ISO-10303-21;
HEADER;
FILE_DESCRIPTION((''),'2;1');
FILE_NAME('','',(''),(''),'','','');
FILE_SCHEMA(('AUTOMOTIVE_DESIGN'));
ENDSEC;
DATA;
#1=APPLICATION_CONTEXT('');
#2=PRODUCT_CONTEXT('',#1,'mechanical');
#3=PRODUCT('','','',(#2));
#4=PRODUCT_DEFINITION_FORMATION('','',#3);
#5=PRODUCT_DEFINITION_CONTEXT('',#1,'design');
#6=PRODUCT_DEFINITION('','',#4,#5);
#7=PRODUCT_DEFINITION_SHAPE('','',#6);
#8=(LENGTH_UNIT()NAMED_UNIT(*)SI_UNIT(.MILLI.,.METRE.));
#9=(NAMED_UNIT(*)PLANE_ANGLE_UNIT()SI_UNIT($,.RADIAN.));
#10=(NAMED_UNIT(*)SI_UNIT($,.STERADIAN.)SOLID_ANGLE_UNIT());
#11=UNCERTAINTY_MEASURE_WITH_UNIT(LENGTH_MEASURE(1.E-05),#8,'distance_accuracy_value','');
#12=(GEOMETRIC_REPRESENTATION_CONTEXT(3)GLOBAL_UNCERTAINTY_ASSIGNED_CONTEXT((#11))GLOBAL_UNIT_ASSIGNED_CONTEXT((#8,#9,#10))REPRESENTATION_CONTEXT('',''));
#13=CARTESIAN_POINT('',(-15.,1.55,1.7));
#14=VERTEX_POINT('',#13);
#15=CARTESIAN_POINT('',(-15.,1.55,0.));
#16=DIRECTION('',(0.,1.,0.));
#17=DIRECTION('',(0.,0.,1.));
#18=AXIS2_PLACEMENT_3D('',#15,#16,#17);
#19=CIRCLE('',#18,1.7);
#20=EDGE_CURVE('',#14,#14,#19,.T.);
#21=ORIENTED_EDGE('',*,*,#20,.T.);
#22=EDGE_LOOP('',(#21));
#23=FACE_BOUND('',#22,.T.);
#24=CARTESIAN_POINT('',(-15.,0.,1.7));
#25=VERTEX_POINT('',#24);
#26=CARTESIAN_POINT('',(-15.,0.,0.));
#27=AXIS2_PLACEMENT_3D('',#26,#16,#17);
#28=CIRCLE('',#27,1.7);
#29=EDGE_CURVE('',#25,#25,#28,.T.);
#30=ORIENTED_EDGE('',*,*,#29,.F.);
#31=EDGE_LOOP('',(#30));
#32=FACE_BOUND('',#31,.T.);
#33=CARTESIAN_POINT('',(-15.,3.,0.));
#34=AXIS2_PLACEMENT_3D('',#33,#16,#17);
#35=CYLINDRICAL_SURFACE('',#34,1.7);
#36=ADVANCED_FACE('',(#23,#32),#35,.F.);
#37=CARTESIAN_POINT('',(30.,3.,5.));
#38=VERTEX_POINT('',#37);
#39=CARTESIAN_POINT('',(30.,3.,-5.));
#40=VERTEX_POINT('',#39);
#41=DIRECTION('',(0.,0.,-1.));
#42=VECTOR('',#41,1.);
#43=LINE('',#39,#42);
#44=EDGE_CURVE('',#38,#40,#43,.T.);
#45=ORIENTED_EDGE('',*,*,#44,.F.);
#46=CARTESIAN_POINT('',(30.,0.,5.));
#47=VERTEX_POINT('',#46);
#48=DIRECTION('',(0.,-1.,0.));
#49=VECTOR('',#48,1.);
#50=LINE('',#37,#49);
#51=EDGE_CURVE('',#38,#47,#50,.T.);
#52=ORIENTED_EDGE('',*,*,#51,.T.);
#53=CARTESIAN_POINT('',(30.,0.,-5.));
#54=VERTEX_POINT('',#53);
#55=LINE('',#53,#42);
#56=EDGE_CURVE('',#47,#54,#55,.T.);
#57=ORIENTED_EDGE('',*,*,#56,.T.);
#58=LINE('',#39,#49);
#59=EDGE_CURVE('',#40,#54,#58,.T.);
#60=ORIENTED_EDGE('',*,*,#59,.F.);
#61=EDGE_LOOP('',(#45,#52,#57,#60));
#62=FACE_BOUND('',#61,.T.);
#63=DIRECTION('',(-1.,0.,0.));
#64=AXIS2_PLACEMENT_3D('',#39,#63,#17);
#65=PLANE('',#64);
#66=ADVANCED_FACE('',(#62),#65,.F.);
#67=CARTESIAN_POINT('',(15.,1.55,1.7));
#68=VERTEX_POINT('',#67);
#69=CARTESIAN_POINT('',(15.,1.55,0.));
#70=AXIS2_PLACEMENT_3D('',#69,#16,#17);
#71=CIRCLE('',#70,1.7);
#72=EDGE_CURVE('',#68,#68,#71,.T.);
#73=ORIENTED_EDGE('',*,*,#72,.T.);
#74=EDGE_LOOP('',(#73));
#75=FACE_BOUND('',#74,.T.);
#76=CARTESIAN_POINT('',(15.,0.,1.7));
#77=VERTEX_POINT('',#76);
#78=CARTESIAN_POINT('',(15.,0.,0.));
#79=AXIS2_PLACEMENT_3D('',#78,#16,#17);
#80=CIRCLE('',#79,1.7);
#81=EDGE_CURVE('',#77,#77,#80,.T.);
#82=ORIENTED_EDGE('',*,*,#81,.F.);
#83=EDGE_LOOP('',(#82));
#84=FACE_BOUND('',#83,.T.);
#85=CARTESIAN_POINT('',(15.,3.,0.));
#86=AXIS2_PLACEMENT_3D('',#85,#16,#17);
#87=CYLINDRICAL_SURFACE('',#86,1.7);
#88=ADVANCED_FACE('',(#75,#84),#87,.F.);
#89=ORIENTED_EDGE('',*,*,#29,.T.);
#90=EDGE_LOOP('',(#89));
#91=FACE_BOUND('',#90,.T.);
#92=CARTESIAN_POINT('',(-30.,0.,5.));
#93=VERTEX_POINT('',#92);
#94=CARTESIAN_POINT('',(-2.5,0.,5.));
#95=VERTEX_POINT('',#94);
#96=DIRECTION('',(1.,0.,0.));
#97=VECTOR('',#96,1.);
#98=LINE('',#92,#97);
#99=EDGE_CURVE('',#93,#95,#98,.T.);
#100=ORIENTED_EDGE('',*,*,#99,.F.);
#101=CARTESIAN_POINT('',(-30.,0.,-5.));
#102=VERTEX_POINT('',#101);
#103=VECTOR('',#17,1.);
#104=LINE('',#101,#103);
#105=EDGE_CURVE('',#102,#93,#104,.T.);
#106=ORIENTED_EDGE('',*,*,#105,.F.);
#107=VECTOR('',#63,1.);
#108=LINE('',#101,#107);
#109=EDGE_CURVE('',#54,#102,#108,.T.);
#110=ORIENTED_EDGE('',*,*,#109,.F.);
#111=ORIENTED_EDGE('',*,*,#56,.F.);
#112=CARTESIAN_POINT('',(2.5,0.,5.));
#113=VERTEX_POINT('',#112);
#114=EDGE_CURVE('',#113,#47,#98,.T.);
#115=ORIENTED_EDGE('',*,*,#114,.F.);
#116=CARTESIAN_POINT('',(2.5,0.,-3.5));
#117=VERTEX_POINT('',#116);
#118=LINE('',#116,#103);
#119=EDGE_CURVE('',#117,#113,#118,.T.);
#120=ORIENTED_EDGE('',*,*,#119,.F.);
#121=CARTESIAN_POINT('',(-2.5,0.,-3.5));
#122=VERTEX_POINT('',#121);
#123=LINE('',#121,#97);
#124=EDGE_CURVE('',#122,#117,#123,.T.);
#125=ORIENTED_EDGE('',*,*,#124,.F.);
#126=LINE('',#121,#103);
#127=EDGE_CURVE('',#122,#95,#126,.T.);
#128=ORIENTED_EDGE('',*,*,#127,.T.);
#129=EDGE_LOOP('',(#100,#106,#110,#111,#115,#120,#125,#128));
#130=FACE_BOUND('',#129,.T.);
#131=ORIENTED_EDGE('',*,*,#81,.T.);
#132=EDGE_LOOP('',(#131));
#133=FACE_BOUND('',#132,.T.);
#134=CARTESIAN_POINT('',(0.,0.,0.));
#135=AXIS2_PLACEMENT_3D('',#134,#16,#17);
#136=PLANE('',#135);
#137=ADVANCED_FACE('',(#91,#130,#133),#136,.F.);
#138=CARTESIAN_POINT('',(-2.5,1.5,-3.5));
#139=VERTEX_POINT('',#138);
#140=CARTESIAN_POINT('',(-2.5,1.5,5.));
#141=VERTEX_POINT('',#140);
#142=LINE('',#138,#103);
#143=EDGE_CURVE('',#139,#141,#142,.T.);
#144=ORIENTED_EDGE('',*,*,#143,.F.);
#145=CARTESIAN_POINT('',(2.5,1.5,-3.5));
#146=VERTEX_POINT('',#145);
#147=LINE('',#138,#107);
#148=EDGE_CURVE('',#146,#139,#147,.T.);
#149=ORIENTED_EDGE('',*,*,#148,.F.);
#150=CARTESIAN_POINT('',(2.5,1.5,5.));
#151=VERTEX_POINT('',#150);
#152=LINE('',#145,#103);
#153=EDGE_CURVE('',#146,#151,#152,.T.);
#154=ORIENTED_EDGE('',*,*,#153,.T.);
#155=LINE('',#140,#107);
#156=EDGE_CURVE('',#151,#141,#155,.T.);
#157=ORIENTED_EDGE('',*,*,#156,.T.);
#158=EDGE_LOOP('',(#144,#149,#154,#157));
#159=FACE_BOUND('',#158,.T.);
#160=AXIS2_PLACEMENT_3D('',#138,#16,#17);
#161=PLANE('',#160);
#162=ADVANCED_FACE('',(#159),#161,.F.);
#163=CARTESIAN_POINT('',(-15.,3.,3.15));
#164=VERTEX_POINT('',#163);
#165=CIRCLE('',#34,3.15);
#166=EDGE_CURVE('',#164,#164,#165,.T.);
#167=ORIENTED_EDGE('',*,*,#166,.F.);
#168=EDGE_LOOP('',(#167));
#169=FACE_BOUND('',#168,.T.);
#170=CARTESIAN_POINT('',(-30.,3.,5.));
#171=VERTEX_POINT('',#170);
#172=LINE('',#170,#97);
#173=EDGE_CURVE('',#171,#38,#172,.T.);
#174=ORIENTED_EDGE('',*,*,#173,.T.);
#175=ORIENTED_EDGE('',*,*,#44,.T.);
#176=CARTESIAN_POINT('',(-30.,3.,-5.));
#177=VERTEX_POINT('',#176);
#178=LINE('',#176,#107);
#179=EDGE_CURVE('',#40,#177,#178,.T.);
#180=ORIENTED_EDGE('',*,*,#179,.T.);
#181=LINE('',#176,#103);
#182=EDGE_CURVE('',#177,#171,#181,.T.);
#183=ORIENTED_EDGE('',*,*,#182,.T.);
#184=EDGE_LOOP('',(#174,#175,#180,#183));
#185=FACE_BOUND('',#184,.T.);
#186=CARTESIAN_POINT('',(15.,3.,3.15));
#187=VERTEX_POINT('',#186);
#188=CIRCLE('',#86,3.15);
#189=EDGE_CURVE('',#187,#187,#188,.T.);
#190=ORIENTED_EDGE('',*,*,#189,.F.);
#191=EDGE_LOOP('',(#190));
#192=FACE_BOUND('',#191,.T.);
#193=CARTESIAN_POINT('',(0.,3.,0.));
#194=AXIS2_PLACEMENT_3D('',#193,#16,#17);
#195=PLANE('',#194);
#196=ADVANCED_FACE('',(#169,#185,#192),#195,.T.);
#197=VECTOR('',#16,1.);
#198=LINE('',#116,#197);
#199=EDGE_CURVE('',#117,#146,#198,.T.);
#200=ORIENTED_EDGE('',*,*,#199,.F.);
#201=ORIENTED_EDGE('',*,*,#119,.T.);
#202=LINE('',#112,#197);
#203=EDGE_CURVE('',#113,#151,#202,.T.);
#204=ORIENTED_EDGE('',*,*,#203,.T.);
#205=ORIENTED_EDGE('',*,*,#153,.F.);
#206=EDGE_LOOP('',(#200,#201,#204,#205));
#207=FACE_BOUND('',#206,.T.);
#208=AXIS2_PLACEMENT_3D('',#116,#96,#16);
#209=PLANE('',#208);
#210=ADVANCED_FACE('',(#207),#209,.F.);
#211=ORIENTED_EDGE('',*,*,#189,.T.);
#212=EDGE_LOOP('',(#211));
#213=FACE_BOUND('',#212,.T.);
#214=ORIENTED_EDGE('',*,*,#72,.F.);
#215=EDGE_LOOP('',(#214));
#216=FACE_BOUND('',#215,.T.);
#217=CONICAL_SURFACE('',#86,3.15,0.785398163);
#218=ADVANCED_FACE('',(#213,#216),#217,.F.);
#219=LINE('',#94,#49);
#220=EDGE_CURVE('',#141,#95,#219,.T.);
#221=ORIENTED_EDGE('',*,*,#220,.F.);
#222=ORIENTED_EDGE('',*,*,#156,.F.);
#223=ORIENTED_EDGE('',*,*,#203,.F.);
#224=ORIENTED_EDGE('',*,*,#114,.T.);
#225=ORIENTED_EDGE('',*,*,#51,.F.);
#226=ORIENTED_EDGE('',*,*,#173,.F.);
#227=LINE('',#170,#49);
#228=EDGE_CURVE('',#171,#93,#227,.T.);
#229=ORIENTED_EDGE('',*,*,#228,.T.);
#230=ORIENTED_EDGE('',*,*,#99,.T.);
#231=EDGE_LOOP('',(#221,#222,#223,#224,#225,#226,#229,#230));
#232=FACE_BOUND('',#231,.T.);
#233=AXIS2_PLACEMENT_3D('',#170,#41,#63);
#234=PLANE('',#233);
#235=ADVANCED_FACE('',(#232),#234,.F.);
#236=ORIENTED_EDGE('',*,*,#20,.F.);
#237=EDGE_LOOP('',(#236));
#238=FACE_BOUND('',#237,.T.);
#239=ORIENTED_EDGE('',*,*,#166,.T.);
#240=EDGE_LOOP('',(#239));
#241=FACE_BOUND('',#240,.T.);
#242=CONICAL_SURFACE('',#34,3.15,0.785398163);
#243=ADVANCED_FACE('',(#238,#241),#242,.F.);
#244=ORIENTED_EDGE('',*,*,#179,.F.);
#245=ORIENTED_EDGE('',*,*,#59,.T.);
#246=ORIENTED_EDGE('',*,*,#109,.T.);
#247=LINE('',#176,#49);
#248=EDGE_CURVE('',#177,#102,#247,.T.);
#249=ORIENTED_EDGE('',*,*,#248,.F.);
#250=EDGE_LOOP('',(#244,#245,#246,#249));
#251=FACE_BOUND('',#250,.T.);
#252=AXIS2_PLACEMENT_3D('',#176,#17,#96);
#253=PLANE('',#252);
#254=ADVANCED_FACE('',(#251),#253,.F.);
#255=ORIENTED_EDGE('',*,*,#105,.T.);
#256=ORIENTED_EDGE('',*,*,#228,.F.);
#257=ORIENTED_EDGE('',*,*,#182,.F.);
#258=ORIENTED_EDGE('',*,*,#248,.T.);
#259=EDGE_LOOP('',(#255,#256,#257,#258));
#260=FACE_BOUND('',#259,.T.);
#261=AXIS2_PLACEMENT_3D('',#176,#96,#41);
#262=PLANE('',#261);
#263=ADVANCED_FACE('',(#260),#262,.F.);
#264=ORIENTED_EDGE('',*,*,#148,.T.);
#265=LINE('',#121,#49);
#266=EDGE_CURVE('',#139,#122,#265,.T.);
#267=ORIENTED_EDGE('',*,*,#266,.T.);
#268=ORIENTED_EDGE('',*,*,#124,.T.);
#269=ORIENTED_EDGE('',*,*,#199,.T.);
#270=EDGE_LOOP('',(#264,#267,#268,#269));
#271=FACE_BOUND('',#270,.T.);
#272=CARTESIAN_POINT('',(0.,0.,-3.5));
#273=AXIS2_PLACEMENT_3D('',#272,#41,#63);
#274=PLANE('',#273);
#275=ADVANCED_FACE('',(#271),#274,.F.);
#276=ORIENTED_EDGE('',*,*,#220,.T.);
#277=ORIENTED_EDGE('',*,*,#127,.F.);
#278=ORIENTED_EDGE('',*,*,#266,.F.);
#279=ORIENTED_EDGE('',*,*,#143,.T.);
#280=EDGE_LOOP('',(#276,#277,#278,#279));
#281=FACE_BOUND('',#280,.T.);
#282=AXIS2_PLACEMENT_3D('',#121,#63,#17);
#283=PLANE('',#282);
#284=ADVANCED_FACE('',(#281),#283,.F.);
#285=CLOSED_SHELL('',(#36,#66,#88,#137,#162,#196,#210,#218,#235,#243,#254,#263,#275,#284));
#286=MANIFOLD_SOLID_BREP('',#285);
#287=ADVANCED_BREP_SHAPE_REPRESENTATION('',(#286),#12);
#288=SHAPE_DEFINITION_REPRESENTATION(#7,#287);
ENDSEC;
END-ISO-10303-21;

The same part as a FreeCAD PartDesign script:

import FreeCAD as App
import Part
import Sketcher

V = App.Vector
Q = App.Units.Quantity


def add_polygon(sketch, points):
    """Adds a closed chain of lines whose ends are joined by coincident constraints."""
    first, n = sketch.GeometryCount, len(points)
    for a, b in zip(points, points[1:] + points[:1]):
        sketch.addGeometry(Part.LineSegment(App.Vector(*a, 0), App.Vector(*b, 0)), False)
    for i in range(n):
        sketch.addConstraint(Sketcher.Constraint("Coincident", first + i, 2, first + (i + 1) % n, 1))

doc = App.newDocument("Part")
body = doc.addObject("PartDesign::Body", "Body")

sketch1 = body.newObject("Sketcher::SketchObject", "Sketch")
sketch1.AttachmentSupport = (doc.getObject("XZ_Plane"), [""])
sketch1.MapMode = "FlatFace"
add_polygon(sketch1, [(-30, -5), (-30, 5), (30, 5), (30, -5)])
sketch1.addConstraint([
    Sketcher.Constraint("Vertical", 0),
    Sketcher.Constraint("Horizontal", 1),
    Sketcher.Constraint("Vertical", 2),
    Sketcher.Constraint("Horizontal", 3),
    Sketcher.Constraint("Symmetric", 0, 2, 2, 2, -1, 1),
    Sketcher.Constraint("DistanceX", 1, 1, 1, 2, Q("60 mm")),
    Sketcher.Constraint("DistanceY", 0, 1, 0, 2, Q("10 mm")),
])
pad1 = body.newObject("PartDesign::Pad", "Pad")
pad1.Profile = sketch1
pad1.Length = 3
pad1.Reversed = True

sketch2 = body.newObject("Sketcher::SketchObject", "Sketch001")
sketch2.AttachmentSupport = (doc.getObject("XZ_Plane"), [""])
sketch2.MapMode = "FlatFace"
sketch2.AttachmentOffset = App.Placement(V(0, 0, -3), App.Rotation())
sketch2.addGeometry([
    Part.Circle(V(-15, 0, 0), V(0, 0, 1), 1.7),
    Part.Circle(V(15, 0, 0), V(0, 0, 1), 1.7),
], False)
sketch2.addConstraint([
    Sketcher.Constraint("Equal", 0, 1),
    Sketcher.Constraint("Symmetric", 0, 3, 1, 3, -1, 1),
    Sketcher.Constraint("PointOnObject", 0, 3, -1),
    Sketcher.Constraint("Diameter", 0, Q("3.4 mm")),
    Sketcher.Constraint("DistanceX", 0, 3, -1, 1, Q("15 mm")),
])
doc.recompute()
hole = body.newObject("PartDesign::Hole", "Hole")
hole.Profile = sketch2
hole.ThreadType = "None"
hole.Diameter = 3.4
hole.DepthType = "Dimension"
hole.Depth = 7.5
hole.DrillPoint = "Angled"
hole.DrillPointAngle = 118
hole.HoleCutType = "Countersink"
hole.HoleCutDiameter = 6.3
hole.HoleCutCountersinkAngle = 90
hole.Reversed = True

sketch3 = body.newObject("Sketcher::SketchObject", "Sketch002")
sketch3.AttachmentSupport = (doc.getObject("XY_Plane"), [""])
sketch3.MapMode = "FlatFace"
sketch3.AttachmentOffset = App.Placement(V(0, 0, 5), App.Rotation())
add_polygon(sketch3, [(-2.5, 1.5), (-2.5, 0), (2.5, 0), (2.5, 1.5)])
sketch3.addConstraint([
    Sketcher.Constraint("Vertical", 0),
    Sketcher.Constraint("Horizontal", 1),
    Sketcher.Constraint("Vertical", 2),
    Sketcher.Constraint("Horizontal", 3),
    Sketcher.Constraint("Symmetric", 0, 2, 1, 2, -1, 1),
    Sketcher.Constraint("DistanceX", 1, 1, 1, 2, Q("5 mm")),
    Sketcher.Constraint("DistanceY", 0, 2, 0, 1, Q("1.5 mm")),
])
pocket1 = body.newObject("PartDesign::Pocket", "Pocket")
pocket1.Profile = sketch3
pocket1.Length = 8.5

doc.recompute()
